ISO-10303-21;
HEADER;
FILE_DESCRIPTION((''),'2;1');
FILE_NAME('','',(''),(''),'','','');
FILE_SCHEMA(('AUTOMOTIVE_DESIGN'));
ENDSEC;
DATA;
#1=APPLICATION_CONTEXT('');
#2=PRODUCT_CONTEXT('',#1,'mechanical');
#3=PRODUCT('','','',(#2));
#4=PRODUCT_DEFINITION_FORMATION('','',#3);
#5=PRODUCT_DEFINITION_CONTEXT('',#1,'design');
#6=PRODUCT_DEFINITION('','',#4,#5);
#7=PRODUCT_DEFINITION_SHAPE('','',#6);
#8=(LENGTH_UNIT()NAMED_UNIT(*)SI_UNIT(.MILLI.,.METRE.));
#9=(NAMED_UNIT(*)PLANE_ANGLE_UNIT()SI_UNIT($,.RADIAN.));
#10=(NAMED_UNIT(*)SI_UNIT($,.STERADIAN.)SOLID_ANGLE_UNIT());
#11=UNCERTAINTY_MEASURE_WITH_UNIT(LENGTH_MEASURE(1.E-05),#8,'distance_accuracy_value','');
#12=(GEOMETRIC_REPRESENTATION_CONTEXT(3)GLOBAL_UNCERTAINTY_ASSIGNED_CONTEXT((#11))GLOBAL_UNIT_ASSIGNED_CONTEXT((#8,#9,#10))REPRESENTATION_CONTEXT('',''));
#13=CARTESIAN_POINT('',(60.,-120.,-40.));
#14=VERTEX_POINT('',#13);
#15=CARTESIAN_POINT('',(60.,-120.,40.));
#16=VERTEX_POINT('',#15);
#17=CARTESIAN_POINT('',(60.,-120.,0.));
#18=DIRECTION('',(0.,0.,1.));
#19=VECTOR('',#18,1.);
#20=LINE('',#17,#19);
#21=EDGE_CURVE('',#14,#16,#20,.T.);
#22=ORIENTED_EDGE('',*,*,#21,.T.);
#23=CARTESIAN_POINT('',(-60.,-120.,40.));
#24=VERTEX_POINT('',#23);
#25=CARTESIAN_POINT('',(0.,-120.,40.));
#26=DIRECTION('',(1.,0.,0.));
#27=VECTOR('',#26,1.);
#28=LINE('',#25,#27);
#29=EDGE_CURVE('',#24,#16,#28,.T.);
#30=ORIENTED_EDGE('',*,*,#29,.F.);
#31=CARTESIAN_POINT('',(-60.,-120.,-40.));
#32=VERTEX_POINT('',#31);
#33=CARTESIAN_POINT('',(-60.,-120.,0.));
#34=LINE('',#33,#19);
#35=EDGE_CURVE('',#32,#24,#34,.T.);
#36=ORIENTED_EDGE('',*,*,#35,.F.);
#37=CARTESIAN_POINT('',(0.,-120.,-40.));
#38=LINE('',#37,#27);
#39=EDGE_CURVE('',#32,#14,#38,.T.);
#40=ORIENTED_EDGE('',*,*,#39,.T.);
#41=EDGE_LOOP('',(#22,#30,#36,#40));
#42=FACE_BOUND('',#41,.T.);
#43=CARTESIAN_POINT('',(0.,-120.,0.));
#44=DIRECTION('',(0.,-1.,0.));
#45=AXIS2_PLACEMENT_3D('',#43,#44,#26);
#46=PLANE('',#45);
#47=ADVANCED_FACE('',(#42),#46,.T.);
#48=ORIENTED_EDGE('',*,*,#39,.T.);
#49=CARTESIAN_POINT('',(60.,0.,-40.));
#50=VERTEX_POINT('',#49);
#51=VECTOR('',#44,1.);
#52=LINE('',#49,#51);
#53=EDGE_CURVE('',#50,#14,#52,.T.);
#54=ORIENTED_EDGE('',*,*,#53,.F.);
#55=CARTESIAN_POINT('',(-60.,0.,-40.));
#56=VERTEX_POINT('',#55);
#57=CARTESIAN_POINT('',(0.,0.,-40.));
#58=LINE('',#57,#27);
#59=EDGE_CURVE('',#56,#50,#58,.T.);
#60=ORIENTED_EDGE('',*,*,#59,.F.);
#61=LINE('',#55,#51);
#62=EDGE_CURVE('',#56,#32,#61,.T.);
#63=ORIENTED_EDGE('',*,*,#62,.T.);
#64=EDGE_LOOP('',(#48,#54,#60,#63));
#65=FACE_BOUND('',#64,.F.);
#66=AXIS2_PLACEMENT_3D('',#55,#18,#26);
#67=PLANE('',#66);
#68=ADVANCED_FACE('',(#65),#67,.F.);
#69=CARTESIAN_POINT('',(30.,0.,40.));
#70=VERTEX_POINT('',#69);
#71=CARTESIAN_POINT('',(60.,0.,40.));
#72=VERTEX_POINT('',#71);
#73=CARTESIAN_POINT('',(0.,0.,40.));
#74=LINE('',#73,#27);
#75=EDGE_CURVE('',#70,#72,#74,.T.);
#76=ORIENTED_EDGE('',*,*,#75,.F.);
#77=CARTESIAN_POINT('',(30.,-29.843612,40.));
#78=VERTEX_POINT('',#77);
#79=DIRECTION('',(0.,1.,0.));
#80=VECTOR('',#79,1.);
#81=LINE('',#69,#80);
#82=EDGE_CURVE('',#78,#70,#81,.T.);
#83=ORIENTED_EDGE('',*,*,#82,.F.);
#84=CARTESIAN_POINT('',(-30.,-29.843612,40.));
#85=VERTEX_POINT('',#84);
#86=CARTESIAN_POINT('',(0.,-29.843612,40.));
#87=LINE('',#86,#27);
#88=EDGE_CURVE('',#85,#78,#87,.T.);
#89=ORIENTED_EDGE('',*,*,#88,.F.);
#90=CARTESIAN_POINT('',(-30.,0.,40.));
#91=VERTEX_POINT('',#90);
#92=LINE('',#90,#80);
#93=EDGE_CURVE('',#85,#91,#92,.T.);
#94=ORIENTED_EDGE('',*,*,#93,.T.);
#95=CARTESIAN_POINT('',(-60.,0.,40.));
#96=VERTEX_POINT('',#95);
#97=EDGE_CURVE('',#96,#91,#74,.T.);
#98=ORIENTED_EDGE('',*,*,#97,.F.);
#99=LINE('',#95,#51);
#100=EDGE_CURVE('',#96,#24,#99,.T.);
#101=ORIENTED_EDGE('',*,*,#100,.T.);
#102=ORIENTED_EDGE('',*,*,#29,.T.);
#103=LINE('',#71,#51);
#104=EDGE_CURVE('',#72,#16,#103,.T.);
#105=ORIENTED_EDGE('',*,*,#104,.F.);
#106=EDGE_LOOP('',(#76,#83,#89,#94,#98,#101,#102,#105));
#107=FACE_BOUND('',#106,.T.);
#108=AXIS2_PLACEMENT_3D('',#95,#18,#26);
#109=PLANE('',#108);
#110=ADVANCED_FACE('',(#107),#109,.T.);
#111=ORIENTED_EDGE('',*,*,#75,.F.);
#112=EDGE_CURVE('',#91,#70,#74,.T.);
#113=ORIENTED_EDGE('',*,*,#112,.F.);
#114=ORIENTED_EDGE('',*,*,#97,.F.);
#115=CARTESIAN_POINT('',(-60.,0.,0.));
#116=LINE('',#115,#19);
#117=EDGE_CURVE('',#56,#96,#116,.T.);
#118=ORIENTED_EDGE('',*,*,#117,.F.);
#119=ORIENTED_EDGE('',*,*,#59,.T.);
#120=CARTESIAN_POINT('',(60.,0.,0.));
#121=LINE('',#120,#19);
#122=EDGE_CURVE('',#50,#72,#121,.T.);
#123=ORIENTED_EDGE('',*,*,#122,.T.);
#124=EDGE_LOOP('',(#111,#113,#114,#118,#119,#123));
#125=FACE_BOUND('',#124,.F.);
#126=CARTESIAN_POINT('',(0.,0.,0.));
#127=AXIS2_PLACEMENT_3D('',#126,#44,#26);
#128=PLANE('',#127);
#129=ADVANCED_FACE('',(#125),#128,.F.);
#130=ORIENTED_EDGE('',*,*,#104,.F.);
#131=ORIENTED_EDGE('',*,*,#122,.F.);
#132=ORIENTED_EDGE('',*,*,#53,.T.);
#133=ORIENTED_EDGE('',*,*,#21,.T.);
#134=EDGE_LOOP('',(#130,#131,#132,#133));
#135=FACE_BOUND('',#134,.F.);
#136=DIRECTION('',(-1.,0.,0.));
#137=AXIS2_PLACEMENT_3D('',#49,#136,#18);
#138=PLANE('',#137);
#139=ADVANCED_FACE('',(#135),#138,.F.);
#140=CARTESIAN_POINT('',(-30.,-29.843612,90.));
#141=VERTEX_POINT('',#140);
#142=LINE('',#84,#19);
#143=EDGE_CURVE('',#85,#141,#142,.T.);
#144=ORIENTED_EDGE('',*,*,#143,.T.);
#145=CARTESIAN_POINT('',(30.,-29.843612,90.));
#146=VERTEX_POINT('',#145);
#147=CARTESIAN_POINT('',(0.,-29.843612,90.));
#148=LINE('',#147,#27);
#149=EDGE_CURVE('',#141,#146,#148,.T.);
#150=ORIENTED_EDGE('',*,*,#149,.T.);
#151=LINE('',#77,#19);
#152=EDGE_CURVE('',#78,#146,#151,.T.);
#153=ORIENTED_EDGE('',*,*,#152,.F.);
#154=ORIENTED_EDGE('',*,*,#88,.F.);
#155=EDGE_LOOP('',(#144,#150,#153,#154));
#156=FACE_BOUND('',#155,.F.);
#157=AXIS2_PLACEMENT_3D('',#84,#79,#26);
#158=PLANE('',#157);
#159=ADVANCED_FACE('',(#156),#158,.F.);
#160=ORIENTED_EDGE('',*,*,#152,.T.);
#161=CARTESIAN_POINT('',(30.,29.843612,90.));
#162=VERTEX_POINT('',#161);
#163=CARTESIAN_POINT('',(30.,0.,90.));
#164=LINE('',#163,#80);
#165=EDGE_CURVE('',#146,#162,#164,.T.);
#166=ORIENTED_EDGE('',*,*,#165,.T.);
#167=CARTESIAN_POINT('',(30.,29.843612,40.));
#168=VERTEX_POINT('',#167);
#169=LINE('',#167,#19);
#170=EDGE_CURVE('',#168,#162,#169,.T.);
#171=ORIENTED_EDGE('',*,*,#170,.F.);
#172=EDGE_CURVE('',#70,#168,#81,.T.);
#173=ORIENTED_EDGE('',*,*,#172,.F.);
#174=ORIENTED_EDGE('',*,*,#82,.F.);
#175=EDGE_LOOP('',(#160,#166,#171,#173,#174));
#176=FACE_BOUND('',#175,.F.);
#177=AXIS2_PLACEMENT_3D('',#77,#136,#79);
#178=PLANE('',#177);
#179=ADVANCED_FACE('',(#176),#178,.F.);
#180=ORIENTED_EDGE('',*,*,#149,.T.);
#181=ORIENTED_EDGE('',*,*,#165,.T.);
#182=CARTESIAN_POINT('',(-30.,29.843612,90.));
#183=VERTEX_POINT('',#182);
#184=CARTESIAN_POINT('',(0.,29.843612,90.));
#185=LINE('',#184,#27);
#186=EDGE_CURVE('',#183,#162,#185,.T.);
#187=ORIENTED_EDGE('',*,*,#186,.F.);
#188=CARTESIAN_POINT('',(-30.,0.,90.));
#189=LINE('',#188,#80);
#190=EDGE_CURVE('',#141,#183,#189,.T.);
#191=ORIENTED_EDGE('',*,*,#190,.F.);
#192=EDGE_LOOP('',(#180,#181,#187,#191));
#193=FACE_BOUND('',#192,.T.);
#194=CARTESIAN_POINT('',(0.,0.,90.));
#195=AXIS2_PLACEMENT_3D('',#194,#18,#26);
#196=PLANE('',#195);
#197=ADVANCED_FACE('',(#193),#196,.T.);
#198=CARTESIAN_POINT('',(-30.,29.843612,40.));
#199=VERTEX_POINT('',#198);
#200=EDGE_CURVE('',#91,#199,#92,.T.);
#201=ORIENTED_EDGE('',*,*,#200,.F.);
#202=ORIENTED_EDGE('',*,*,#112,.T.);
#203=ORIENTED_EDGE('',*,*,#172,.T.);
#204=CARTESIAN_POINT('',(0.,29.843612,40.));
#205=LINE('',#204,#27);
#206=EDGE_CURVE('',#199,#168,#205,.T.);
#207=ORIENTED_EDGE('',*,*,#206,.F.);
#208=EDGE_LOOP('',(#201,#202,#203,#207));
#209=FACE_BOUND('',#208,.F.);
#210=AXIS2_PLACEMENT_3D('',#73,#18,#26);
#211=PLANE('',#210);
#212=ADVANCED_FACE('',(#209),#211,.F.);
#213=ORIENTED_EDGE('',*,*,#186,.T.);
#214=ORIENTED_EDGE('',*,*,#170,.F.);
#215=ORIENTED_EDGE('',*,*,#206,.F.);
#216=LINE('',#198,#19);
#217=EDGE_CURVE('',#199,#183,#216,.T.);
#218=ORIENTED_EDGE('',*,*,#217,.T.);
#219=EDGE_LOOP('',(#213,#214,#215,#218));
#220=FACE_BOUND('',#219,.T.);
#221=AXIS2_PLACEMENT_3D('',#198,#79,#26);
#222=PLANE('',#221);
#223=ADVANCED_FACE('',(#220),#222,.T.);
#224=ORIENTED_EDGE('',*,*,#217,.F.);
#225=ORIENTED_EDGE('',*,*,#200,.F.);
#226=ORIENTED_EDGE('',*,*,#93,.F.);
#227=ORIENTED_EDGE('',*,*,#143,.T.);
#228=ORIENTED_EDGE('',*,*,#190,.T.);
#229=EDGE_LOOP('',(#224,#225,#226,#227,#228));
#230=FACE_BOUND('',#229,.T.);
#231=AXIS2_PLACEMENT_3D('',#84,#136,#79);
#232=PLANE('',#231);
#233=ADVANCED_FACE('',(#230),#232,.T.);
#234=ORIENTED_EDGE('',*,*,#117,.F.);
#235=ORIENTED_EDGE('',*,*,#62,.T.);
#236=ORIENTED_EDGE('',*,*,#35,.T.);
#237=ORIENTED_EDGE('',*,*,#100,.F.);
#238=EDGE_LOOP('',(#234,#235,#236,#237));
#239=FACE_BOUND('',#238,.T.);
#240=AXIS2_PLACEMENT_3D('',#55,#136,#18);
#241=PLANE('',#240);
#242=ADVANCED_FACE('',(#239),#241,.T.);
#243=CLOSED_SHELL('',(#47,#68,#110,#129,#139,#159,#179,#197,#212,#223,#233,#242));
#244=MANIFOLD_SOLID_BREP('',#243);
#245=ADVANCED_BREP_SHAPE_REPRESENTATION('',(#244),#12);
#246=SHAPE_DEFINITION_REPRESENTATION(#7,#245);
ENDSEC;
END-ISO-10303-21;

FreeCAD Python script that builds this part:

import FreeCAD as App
import Part
import Sketcher
Q = App.Units.Quantity

doc = App.newDocument("Part")
body = doc.addObject("PartDesign::Body", "Body")

sketch1 = doc.addObject("Sketcher::SketchObject", "Sketch")
body.addObject(sketch1)
sketch1.AttachmentSupport = (doc.XZ_Plane, [""])
sketch1.MapMode = "FlatFace"
sketch1.addGeometry([
    Part.LineSegment(App.Vector(-60, 40, 0), App.Vector(-60, -40, 0)),
    Part.LineSegment(App.Vector(-60, -40, 0), App.Vector(60, -40, 0)),
    Part.LineSegment(App.Vector(60, -40, 0), App.Vector(60, 40, 0)),
    Part.LineSegment(App.Vector(60, 40, 0), App.Vector(-60, 40, 0)),
], False)
sketch1.addConstraint([
    Sketcher.Constraint("Coincident", 0, 2, 1, 1),
    Sketcher.Constraint("Coincident", 1, 2, 2, 1),
    Sketcher.Constraint("Coincident", 2, 2, 3, 1),
    Sketcher.Constraint("Coincident", 3, 2, 0, 1),
    Sketcher.Constraint("Vertical", 0),
    Sketcher.Constraint("Horizontal", 1),
    Sketcher.Constraint("Vertical", 2),
    Sketcher.Constraint("Horizontal", 3),
    Sketcher.Constraint("Symmetric", 0, 2, 2, 2, -1, 1),
    Sketcher.Constraint("DistanceX", 1, 1, 1, 2, Q("120 mm")),
    Sketcher.Constraint("DistanceY", 0, 2, 0, 1, Q("80 mm")),
])
pad1 = doc.addObject("PartDesign::Pad", "Pad")
body.addObject(pad1)
pad1.Profile = sketch1
pad1.Length = 120

sketch2 = doc.addObject("Sketcher::SketchObject", "Sketch001")
body.addObject(sketch2)
sketch2.AttachmentSupport = (doc.XY_Plane, [""])
sketch2.MapMode = "FlatFace"
sketch2.AttachmentOffset = App.Placement(App.Vector(0, 0, 40), App.Rotation())
sketch2.addGeometry([
    Part.LineSegment(App.Vector(-30, 30, 0), App.Vector(-30, -30, 0)),
    Part.LineSegment(App.Vector(-30, -30, 0), App.Vector(30, -30, 0)),
    Part.LineSegment(App.Vector(30, -30, 0), App.Vector(30, 30, 0)),
    Part.LineSegment(App.Vector(30, 30, 0), App.Vector(-30, 30, 0)),
], False)
sketch2.addConstraint([
    Sketcher.Constraint("Coincident", 0, 2, 1, 1),
    Sketcher.Constraint("Coincident", 1, 2, 2, 1),
    Sketcher.Constraint("Coincident", 2, 2, 3, 1),
    Sketcher.Constraint("Coincident", 3, 2, 0, 1),
    Sketcher.Constraint("Vertical", 0),
    Sketcher.Constraint("Horizontal", 1),
    Sketcher.Constraint("Vertical", 2),
    Sketcher.Constraint("Horizontal", 3),
    Sketcher.Constraint("Symmetric", 0, 2, 2, 2, -1, 1),
    Sketcher.Constraint("DistanceX", 1, 1, 1, 2, Q("60 mm")),
    Sketcher.Constraint("DistanceY", 0, 2, 0, 1, Q("59.687224 mm")),
])
pad2 = doc.addObject("PartDesign::Pad", "Pad001")
body.addObject(pad2)
pad2.Profile = sketch2
pad2.Length = 50

doc.recompute()
